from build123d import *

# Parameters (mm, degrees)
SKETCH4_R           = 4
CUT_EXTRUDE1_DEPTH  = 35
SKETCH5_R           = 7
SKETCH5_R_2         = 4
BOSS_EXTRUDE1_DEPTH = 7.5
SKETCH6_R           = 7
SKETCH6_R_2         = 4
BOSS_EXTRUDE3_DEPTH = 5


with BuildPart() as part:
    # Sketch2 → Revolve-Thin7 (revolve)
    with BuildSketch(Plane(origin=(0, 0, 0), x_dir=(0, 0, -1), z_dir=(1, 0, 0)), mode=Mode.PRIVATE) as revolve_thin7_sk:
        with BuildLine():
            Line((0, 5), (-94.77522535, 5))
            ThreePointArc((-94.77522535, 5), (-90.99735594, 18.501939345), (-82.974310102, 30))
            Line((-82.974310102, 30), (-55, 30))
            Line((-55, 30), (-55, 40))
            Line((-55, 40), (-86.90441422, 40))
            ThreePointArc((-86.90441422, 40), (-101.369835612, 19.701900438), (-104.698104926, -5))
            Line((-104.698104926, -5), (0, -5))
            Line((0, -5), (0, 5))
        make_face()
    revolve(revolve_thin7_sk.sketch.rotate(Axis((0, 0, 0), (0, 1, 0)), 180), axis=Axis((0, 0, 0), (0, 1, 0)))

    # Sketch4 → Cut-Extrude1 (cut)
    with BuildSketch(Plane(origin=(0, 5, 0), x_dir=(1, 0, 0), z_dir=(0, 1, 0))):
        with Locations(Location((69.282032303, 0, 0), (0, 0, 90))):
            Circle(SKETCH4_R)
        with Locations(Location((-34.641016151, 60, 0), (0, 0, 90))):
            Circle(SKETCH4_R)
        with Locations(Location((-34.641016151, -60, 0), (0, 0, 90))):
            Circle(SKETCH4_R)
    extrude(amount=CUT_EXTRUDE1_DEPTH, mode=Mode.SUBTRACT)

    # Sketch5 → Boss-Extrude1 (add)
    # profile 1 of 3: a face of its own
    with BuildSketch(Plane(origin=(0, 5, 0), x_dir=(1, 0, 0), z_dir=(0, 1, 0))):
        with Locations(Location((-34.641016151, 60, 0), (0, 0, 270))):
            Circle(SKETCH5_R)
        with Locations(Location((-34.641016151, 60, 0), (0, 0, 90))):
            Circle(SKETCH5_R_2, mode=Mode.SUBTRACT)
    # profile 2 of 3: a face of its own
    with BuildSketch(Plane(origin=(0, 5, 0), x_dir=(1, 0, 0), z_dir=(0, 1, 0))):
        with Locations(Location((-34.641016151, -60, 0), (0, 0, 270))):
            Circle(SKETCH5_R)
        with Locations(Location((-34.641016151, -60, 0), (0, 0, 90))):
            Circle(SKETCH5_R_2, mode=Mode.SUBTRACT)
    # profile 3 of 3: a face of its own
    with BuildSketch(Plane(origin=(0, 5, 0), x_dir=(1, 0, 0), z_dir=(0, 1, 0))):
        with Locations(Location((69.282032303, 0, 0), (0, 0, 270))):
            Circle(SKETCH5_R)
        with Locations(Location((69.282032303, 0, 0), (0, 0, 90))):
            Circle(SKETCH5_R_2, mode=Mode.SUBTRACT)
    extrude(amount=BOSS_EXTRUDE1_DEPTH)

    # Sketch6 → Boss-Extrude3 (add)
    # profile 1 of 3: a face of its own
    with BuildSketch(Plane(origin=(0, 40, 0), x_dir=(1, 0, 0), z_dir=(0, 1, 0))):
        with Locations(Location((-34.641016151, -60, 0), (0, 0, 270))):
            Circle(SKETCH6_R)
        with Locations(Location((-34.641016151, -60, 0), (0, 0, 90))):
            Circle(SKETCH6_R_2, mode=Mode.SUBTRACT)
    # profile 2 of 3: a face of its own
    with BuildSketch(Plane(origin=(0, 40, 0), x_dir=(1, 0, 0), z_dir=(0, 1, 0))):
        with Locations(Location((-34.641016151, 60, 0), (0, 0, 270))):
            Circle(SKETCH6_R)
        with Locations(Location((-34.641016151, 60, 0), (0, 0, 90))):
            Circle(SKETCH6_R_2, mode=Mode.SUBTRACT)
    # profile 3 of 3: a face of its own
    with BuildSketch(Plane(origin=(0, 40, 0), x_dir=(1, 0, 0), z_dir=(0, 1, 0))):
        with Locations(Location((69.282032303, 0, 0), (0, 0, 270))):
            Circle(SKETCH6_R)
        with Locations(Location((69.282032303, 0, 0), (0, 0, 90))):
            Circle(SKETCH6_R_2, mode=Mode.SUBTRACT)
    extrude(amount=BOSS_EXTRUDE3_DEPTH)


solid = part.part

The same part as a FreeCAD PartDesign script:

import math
import FreeCAD as App
import Part
import Sketcher

doc = App.newDocument("Part")
body = doc.addObject("PartDesign::Body", "Body")

sketch1 = body.newObject("Sketcher::SketchObject", "Sketch")
sketch1.AttachmentSupport = (doc.getObject("YZ_Plane"), [""])
sketch1.MapMode = "FlatFace"
sketch1.addGeometry(Part.LineSegment(App.Vector(5, 0, 0), App.Vector(5, 95, 0)), False)
sketch1.addGeometry(Part.ArcOfCircle(Part.Circle(App.Vector(1, 53, 0), App.Vector(0, 0, 1), 42), math.radians(45), math.radians(84)), False)
sketch1.addGeometry(Part.LineSegment(App.Vector(30, 83, 0), App.Vector(30, 55, 0)), False)
sketch1.addGeometry(Part.LineSegment(App.Vector(30, 55, 0), App.Vector(40, 55, 0)), False)
sketch1.addGeometry(Part.LineSegment(App.Vector(40, 55, 0), App.Vector(40, 87, 0)), False)
sketch1.addGeometry(Part.ArcOfCircle(Part.Circle(App.Vector(1, 53, 0), App.Vector(0, 0, 1), 52), math.radians(41), math.radians(96)), False)
sketch1.addGeometry(Part.LineSegment(App.Vector(-5, 105, 0), App.Vector(-5, 0, 0)), False)
sketch1.addGeometry(Part.LineSegment(App.Vector(-5, 0, 0), App.Vector(5, 0, 0)), False)
sketch1.addConstraint(Sketcher.Constraint("Coincident", 0, 2, 1, 2))
sketch1.addConstraint(Sketcher.Constraint("Coincident", 1, 1, 2, 1))
sketch1.addConstraint(Sketcher.Constraint("Coincident", 2, 2, 3, 1))
sketch1.addConstraint(Sketcher.Constraint("Coincident", 3, 2, 4, 1))
sketch1.addConstraint(Sketcher.Constraint("Coincident", 4, 2, 5, 1))
sketch1.addConstraint(Sketcher.Constraint("Coincident", 5, 2, 6, 1))
sketch1.addConstraint(Sketcher.Constraint("Coincident", 6, 2, 7, 1))
sketch1.addConstraint(Sketcher.Constraint("Coincident", 7, 2, 0, 1))
sketch1.addConstraint(Sketcher.Constraint("Vertical", 0))
sketch1.addConstraint(Sketcher.Constraint("Vertical", 2))
sketch1.addConstraint(Sketcher.Constraint("Horizontal", 3))
sketch1.addConstraint(Sketcher.Constraint("Vertical", 4))
sketch1.addConstraint(Sketcher.Constraint("Vertical", 6))
sketch1.addConstraint(Sketcher.Constraint("Horizontal", 7))
sketch1.addConstraint(Sketcher.Constraint("Coincident", 5, 3, 1, 3))
sketch1.addConstraint(Sketcher.Constraint("Symmetric", 6, 2, 7, 2, -1, 1))
sketch1.addConstraint(Sketcher.Constraint("Equal", 3, 7))
sketch1.addConstraint(Sketcher.Constraint("DistanceX", 3, 1, 3, 2, 10.0))
sketch1.addConstraint(Sketcher.Constraint("DistanceX", -1, 1, 1, 1, 30.0))
sketch1.addConstraint(Sketcher.Constraint("DistanceY", -1, 1, 2, 2, 55.0))
sketch1.addConstraint(Sketcher.Constraint("Radius", 1, 41.874611))
sketch1.addConstraint(Sketcher.Constraint("Radius", 5, 51.874611))
sketch1.addConstraint(Sketcher.Constraint("DistanceY", 2, 2, 2, 1, 27.97431))
sketch1.addConstraint(Sketcher.Constraint("DistanceY", 0, 1, 0, 2, 94.775225))
revolution = body.newObject("PartDesign::Revolution", "Revolution")
revolution.Profile = sketch1
revolution.ReferenceAxis = (sketch1, ["H_Axis"])
revolution.Angle = 360

sketch2 = body.newObject("Sketcher::SketchObject", "Sketch001")
sketch2.AttachmentSupport = (doc.getObject("XZ_Plane"), [""])
sketch2.MapMode = "FlatFace"
sketch2.AttachmentOffset = App.Placement(App.Vector(0, 0, -5), App.Rotation())
sketch2.addGeometry(Part.Circle(App.Vector(69.3, 0, 0), App.Vector(0, 0, 1), 4), False)
sketch2.addGeometry(Part.Circle(App.Vector(-34.6, -60, 0), App.Vector(0, 0, 1), 4), False)
sketch2.addGeometry(Part.Circle(App.Vector(-34.6, 60, 0), App.Vector(0, 0, 1), 4), False)
sketch2.addConstraint(Sketcher.Constraint("Equal", 0, 1))
sketch2.addConstraint(Sketcher.Constraint("Equal", 1, 2))
sketch2.addConstraint(Sketcher.Constraint("Symmetric", 1, 3, 2, 3, -1))
sketch2.addConstraint(Sketcher.Constraint("PointOnObject", 0, 3, -1))
sketch2.addConstraint(Sketcher.Constraint("Diameter", 0, 8.0))
sketch2.addConstraint(Sketcher.Constraint("DistanceY", 1, 3, -1, 1, 60.0))
sketch2.addConstraint(Sketcher.Constraint("DistanceX", 1, 3, 0, 3, 103.923048))
sketch2.addConstraint(Sketcher.Constraint("DistanceX", -1, 1, 0, 3, 69.282032))
pocket1 = body.newObject("PartDesign::Pocket", "Pocket")
pocket1.Profile = sketch2
pocket1.Length = 35

sketch3 = body.newObject("Sketcher::SketchObject", "Sketch002")
sketch3.AttachmentSupport = (doc.getObject("XZ_Plane"), [""])
sketch3.MapMode = "FlatFace"
sketch3.AttachmentOffset = App.Placement(App.Vector(0, 0, -5), App.Rotation())
sketch3.addGeometry(Part.Circle(App.Vector(-34.6, -60, 0), App.Vector(0, 0, 1), 7), False)
sketch3.addGeometry(Part.Circle(App.Vector(-34.6, -60, 0), App.Vector(0, 0, 1), 4), False)
sketch3.addGeometry(Part.Circle(App.Vector(-34.6, 60, 0), App.Vector(0, 0, 1), 7), False)
sketch3.addGeometry(Part.Circle(App.Vector(-34.6, 60, 0), App.Vector(0, 0, 1), 4), False)
sketch3.addGeometry(Part.Circle(App.Vector(69.3, 0, 0), App.Vector(0, 0, 1), 7), False)
sketch3.addGeometry(Part.Circle(App.Vector(69.3, 0, 0), App.Vector(0, 0, 1), 4), False)
sketch3.addConstraint(Sketcher.Constraint("Coincident", 1, 3, 0, 3))
sketch3.addConstraint(Sketcher.Constraint("Coincident", 3, 3, 2, 3))
sketch3.addConstraint(Sketcher.Constraint("Coincident", 5, 3, 4, 3))
sketch3.addConstraint(Sketcher.Constraint("Equal", 0, 2))
sketch3.addConstraint(Sketcher.Constraint("Equal", 1, 3))
sketch3.addConstraint(Sketcher.Constraint("Equal", 2, 4))
sketch3.addConstraint(Sketcher.Constraint("Equal", 3, 5))
sketch3.addConstraint(Sketcher.Constraint("Symmetric", 0, 3, 2, 3, -1))
sketch3.addConstraint(Sketcher.Constraint("PointOnObject", 4, 3, -1))
sketch3.addConstraint(Sketcher.Constraint("Diameter", 0, 14.0))
sketch3.addConstraint(Sketcher.Constraint("Diameter", 1, 8.0))
sketch3.addConstraint(Sketcher.Constraint("DistanceY", 0, 3, -1, 1, 60.0))
sketch3.addConstraint(Sketcher.Constraint("DistanceX", 0, 3, 4, 3, 103.923048))
sketch3.addConstraint(Sketcher.Constraint("DistanceX", 0, 3, -1, 1, 34.641016))
pad1 = body.newObject("PartDesign::Pad", "Pad")
pad1.Profile = sketch3
pad1.Length = 7.5
pad1.Reversed = True

sketch4 = body.newObject("Sketcher::SketchObject", "Sketch003")
sketch4.AttachmentSupport = (doc.getObject("XZ_Plane"), [""])
sketch4.MapMode = "FlatFace"
sketch4.AttachmentOffset = App.Placement(App.Vector(0, 0, -40), App.Rotation())
sketch4.addGeometry(Part.Circle(App.Vector(-34.6, 60, 0), App.Vector(0, 0, 1), 7), False)
sketch4.addGeometry(Part.Circle(App.Vector(-34.6, 60, 0), App.Vector(0, 0, 1), 4), False)
sketch4.addGeometry(Part.Circle(App.Vector(-34.6, -60, 0), App.Vector(0, 0, 1), 7), False)
sketch4.addGeometry(Part.Circle(App.Vector(-34.6, -60, 0), App.Vector(0, 0, 1), 4), False)
sketch4.addGeometry(Part.Circle(App.Vector(69.3, 0, 0), App.Vector(0, 0, 1), 7), False)
sketch4.addGeometry(Part.Circle(App.Vector(69.3, 0, 0), App.Vector(0, 0, 1), 4), False)
sketch4.addConstraint(Sketcher.Constraint("Coincident", 1, 3, 0, 3))
sketch4.addConstraint(Sketcher.Constraint("Coincident", 3, 3, 2, 3))
sketch4.addConstraint(Sketcher.Constraint("Coincident", 5, 3, 4, 3))
sketch4.addConstraint(Sketcher.Constraint("Equal", 0, 2))
sketch4.addConstraint(Sketcher.Constraint("Equal", 1, 3))
sketch4.addConstraint(Sketcher.Constraint("Equal", 2, 4))
sketch4.addConstraint(Sketcher.Constraint("Equal", 3, 5))
sketch4.addConstraint(Sketcher.Constraint("Symmetric", 0, 3, 2, 3, -1))
sketch4.addConstraint(Sketcher.Constraint("PointOnObject", 4, 3, -1))
sketch4.addConstraint(Sketcher.Constraint("Diameter", 0, 14.0))
sketch4.addConstraint(Sketcher.Constraint("Diameter", 1, 8.0))
sketch4.addConstraint(Sketcher.Constraint("DistanceY", -1, 1, 0, 3, 60.0))
sketch4.addConstraint(Sketcher.Constraint("DistanceX", 0, 3, 4, 3, 103.923048))
sketch4.addConstraint(Sketcher.Constraint("DistanceX", 0, 3, -1, 1, 34.641016))
pad2 = body.newObject("PartDesign::Pad", "Pad001")
pad2.Profile = sketch4
pad2.Length = 5
pad2.Reversed = True

doc.recompute()
